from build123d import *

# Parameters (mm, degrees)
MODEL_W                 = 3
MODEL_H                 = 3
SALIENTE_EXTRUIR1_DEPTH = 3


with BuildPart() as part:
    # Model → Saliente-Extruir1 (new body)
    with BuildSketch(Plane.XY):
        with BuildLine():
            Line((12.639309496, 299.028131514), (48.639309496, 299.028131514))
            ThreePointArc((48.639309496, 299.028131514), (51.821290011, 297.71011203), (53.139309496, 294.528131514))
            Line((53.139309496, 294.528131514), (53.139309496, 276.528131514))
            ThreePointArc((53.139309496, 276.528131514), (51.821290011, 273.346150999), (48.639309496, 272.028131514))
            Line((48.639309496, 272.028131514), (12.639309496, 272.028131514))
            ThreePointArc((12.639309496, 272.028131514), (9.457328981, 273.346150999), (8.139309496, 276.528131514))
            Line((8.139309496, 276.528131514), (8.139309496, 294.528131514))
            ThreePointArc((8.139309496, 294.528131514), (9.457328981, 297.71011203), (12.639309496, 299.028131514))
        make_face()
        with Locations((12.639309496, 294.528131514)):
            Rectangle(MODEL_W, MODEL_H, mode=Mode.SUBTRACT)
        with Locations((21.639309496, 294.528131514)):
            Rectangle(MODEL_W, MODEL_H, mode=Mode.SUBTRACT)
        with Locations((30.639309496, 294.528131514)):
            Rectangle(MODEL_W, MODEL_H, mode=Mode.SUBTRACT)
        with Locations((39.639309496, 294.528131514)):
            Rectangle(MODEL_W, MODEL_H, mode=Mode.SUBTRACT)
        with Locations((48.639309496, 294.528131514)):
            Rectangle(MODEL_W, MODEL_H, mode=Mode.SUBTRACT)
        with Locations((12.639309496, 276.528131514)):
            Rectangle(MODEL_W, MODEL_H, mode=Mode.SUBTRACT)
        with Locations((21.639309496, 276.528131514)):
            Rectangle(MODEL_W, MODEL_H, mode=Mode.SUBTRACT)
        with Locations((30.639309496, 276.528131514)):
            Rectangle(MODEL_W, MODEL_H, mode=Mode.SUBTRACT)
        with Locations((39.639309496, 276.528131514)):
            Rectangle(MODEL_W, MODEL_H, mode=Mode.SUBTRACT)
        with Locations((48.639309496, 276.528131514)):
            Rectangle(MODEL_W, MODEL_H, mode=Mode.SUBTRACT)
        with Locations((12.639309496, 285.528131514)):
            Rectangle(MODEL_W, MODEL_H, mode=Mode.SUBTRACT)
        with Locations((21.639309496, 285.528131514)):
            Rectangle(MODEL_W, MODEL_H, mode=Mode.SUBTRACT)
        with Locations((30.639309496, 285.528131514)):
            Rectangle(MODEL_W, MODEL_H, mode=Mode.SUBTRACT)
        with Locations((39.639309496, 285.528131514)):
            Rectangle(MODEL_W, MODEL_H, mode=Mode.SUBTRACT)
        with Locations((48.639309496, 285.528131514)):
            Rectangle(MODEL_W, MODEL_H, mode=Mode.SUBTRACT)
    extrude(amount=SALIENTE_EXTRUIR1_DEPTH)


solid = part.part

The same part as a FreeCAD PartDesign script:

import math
import FreeCAD as App
import Part
import Sketcher
Q = App.Units.Quantity

doc = App.newDocument("Part")
body = doc.addObject("PartDesign::Body", "Body")

sketch1 = body.newObject("Sketcher::SketchObject", "Sketch")
sketch1.AttachmentSupport = (doc.getObject("XY_Plane"), [""])
sketch1.MapMode = "FlatFace"
sketch1.addGeometry(Part.LineSegment(App.Vector(48.639309, 299.028132, 0), App.Vector(12.639309, 299.028132, 0)), False)
sketch1.addGeometry(Part.ArcOfCircle(Part.Circle(App.Vector(12.639309, 294.528132, 0), App.Vector(0, 0, 1), 4.5), math.radians(90), math.radians(180)), False)
sketch1.addGeometry(Part.LineSegment(App.Vector(8.139309, 294.528132, 0), App.Vector(8.139309, 276.528132, 0)), False)
sketch1.addGeometry(Part.ArcOfCircle(Part.Circle(App.Vector(12.639309, 276.528132, 0), App.Vector(0, 0, 1), 4.5), math.radians(-180), math.radians(-90)), False)
sketch1.addGeometry(Part.LineSegment(App.Vector(12.639309, 272.028132, 0), App.Vector(48.639309, 272.028132, 0)), False)
sketch1.addGeometry(Part.ArcOfCircle(Part.Circle(App.Vector(48.639309, 276.528132, 0), App.Vector(0, 0, 1), 4.5), math.radians(-90), math.radians(0)), False)
sketch1.addGeometry(Part.LineSegment(App.Vector(53.139309, 276.528132, 0), App.Vector(53.139309, 294.528132, 0)), False)
sketch1.addGeometry(Part.ArcOfCircle(Part.Circle(App.Vector(48.639309, 294.528132, 0), App.Vector(0, 0, 1), 4.5), math.radians(0), math.radians(90)), False)
sketch1.addGeometry(Part.LineSegment(App.Vector(47.139309, 275.028132, 0), App.Vector(47.139309, 278.028132, 0)), False)
sketch1.addGeometry(Part.LineSegment(App.Vector(47.139309, 278.028132, 0), App.Vector(50.139309, 278.028132, 0)), False)
sketch1.addGeometry(Part.LineSegment(App.Vector(50.139309, 278.028132, 0), App.Vector(50.139309, 275.028132, 0)), False)
sketch1.addGeometry(Part.LineSegment(App.Vector(50.139309, 275.028132, 0), App.Vector(47.139309, 275.028132, 0)), False)
sketch1.addGeometry(Part.LineSegment(App.Vector(38.139309, 275.028132, 0), App.Vector(38.139309, 278.028132, 0)), False)
sketch1.addGeometry(Part.LineSegment(App.Vector(38.139309, 278.028132, 0), App.Vector(41.139309, 278.028132, 0)), False)
sketch1.addGeometry(Part.LineSegment(App.Vector(41.139309, 278.028132, 0), App.Vector(41.139309, 275.028132, 0)), False)
sketch1.addGeometry(Part.LineSegment(App.Vector(41.139309, 275.028132, 0), App.Vector(38.139309, 275.028132, 0)), False)
sketch1.addGeometry(Part.LineSegment(App.Vector(29.139309, 275.028132, 0), App.Vector(29.139309, 278.028132, 0)), False)
sketch1.addGeometry(Part.LineSegment(App.Vector(29.139309, 278.028132, 0), App.Vector(32.139309, 278.028132, 0)), False)
sketch1.addGeometry(Part.LineSegment(App.Vector(32.139309, 278.028132, 0), App.Vector(32.139309, 275.028132, 0)), False)
sketch1.addGeometry(Part.LineSegment(App.Vector(32.139309, 275.028132, 0), App.Vector(29.139309, 275.028132, 0)), False)
sketch1.addGeometry(Part.LineSegment(App.Vector(20.139309, 275.028132, 0), App.Vector(20.139309, 278.028132, 0)), False)
sketch1.addGeometry(Part.LineSegment(App.Vector(20.139309, 278.028132, 0), App.Vector(23.139309, 278.028132, 0)), False)
sketch1.addGeometry(Part.LineSegment(App.Vector(23.139309, 278.028132, 0), App.Vector(23.139309, 275.028132, 0)), False)
sketch1.addGeometry(Part.LineSegment(App.Vector(23.139309, 275.028132, 0), App.Vector(20.139309, 275.028132, 0)), False)
sketch1.addGeometry(Part.LineSegment(App.Vector(11.139309, 275.028132, 0), App.Vector(11.139309, 278.028132, 0)), False)
sketch1.addGeometry(Part.LineSegment(App.Vector(11.139309, 278.028132, 0), App.Vector(14.139309, 278.028132, 0)), False)
sketch1.addGeometry(Part.LineSegment(App.Vector(14.139309, 278.028132, 0), App.Vector(14.139309, 275.028132, 0)), False)
sketch1.addGeometry(Part.LineSegment(App.Vector(14.139309, 275.028132, 0), App.Vector(11.139309, 275.028132, 0)), False)
sketch1.addGeometry(Part.LineSegment(App.Vector(47.139309, 284.028132, 0), App.Vector(47.139309, 287.028132, 0)), False)
sketch1.addGeometry(Part.LineSegment(App.Vector(47.139309, 287.028132, 0), App.Vector(50.139309, 287.028132, 0)), False)
sketch1.addGeometry(Part.LineSegment(App.Vector(50.139309, 287.028132, 0), App.Vector(50.139309, 284.028132, 0)), False)
sketch1.addGeometry(Part.LineSegment(App.Vector(50.139309, 284.028132, 0), App.Vector(47.139309, 284.028132, 0)), False)
sketch1.addGeometry(Part.LineSegment(App.Vector(38.139309, 284.028132, 0), App.Vector(38.139309, 287.028132, 0)), False)
sketch1.addGeometry(Part.LineSegment(App.Vector(38.139309, 287.028132, 0), App.Vector(41.139309, 287.028132, 0)), False)
sketch1.addGeometry(Part.LineSegment(App.Vector(41.139309, 287.028132, 0), App.Vector(41.139309, 284.028132, 0)), False)
sketch1.addGeometry(Part.LineSegment(App.Vector(41.139309, 284.028132, 0), App.Vector(38.139309, 284.028132, 0)), False)
sketch1.addGeometry(Part.LineSegment(App.Vector(47.139309, 293.028132, 0), App.Vector(47.139309, 296.028132, 0)), False)
sketch1.addGeometry(Part.LineSegment(App.Vector(47.139309, 296.028132, 0), App.Vector(50.139309, 296.028132, 0)), False)
sketch1.addGeometry(Part.LineSegment(App.Vector(50.139309, 296.028132, 0), App.Vector(50.139309, 293.028132, 0)), False)
sketch1.addGeometry(Part.LineSegment(App.Vector(50.139309, 293.028132, 0), App.Vector(47.139309, 293.028132, 0)), False)
sketch1.addGeometry(Part.LineSegment(App.Vector(38.139309, 293.028132, 0), App.Vector(38.139309, 296.028132, 0)), False)
sketch1.addGeometry(Part.LineSegment(App.Vector(38.139309, 296.028132, 0), App.Vector(41.139309, 296.028132, 0)), False)
sketch1.addGeometry(Part.LineSegment(App.Vector(41.139309, 296.028132, 0), App.Vector(41.139309, 293.028132, 0)), False)
sketch1.addGeometry(Part.LineSegment(App.Vector(41.139309, 293.028132, 0), App.Vector(38.139309, 293.028132, 0)), False)
sketch1.addGeometry(Part.LineSegment(App.Vector(29.139309, 284.028132, 0), App.Vector(29.139309, 287.028132, 0)), False)
sketch1.addGeometry(Part.LineSegment(App.Vector(29.139309, 287.028132, 0), App.Vector(32.139309, 287.028132, 0)), False)
sketch1.addGeometry(Part.LineSegment(App.Vector(32.139309, 287.028132, 0), App.Vector(32.139309, 284.028132, 0)), False)
sketch1.addGeometry(Part.LineSegment(App.Vector(32.139309, 284.028132, 0), App.Vector(29.139309, 284.028132, 0)), False)
sketch1.addGeometry(Part.LineSegment(App.Vector(20.139309, 284.028132, 0), App.Vector(20.139309, 287.028132, 0)), False)
sketch1.addGeometry(Part.LineSegment(App.Vector(20.139309, 287.028132, 0), App.Vector(23.139309, 287.028132, 0)), False)
sketch1.addGeometry(Part.LineSegment(App.Vector(23.139309, 287.028132, 0), App.Vector(23.139309, 284.028132, 0)), False)
sketch1.addGeometry(Part.LineSegment(App.Vector(23.139309, 284.028132, 0), App.Vector(20.139309, 284.028132, 0)), False)
sketch1.addGeometry(Part.LineSegment(App.Vector(11.139309, 284.028132, 0), App.Vector(11.139309, 287.028132, 0)), False)
sketch1.addGeometry(Part.LineSegment(App.Vector(11.139309, 287.028132, 0), App.Vector(14.139309, 287.028132, 0)), False)
sketch1.addGeometry(Part.LineSegment(App.Vector(14.139309, 287.028132, 0), App.Vector(14.139309, 284.028132, 0)), False)
sketch1.addGeometry(Part.LineSegment(App.Vector(14.139309, 284.028132, 0), App.Vector(11.139309, 284.028132, 0)), False)
sketch1.addGeometry(Part.LineSegment(App.Vector(29.139309, 293.028132, 0), App.Vector(29.139309, 296.028132, 0)), False)
sketch1.addGeometry(Part.LineSegment(App.Vector(29.139309, 296.028132, 0), App.Vector(32.139309, 296.028132, 0)), False)
sketch1.addGeometry(Part.LineSegment(App.Vector(32.139309, 296.028132, 0), App.Vector(32.139309, 293.028132, 0)), False)
sketch1.addGeometry(Part.LineSegment(App.Vector(32.139309, 293.028132, 0), App.Vector(29.139309, 293.028132, 0)), False)
sketch1.addGeometry(Part.LineSegment(App.Vector(20.139309, 293.028132, 0), App.Vector(20.139309, 296.028132, 0)), False)
sketch1.addGeometry(Part.LineSegment(App.Vector(20.139309, 296.028132, 0), App.Vector(23.139309, 296.028132, 0)), False)
sketch1.addGeometry(Part.LineSegment(App.Vector(23.139309, 296.028132, 0), App.Vector(23.139309, 293.028132, 0)), False)
sketch1.addGeometry(Part.LineSegment(App.Vector(23.139309, 293.028132, 0), App.Vector(20.139309, 293.028132, 0)), False)
sketch1.addGeometry(Part.LineSegment(App.Vector(11.139309, 293.028132, 0), App.Vector(11.139309, 296.028132, 0)), False)
sketch1.addGeometry(Part.LineSegment(App.Vector(11.139309, 296.028132, 0), App.Vector(14.139309, 296.028132, 0)), False)
sketch1.addGeometry(Part.LineSegment(App.Vector(14.139309, 296.028132, 0), App.Vector(14.139309, 293.028132, 0)), False)
sketch1.addGeometry(Part.LineSegment(App.Vector(14.139309, 293.028132, 0), App.Vector(11.139309, 293.028132, 0)), False)
sketch1.addConstraint(Sketcher.Constraint("Tangent", 0, 2, 1, 1))
sketch1.addConstraint(Sketcher.Constraint("Tangent", 1, 2, 2, 1))
sketch1.addConstraint(Sketcher.Constraint("Tangent", 2, 2, 3, 1))
sketch1.addConstraint(Sketcher.Constraint("Tangent", 3, 2, 4, 1))
sketch1.addConstraint(Sketcher.Constraint("Tangent", 4, 2, 5, 1))
sketch1.addConstraint(Sketcher.Constraint("Tangent", 5, 2, 6, 1))
sketch1.addConstraint(Sketcher.Constraint("Tangent", 6, 2, 7, 1))
sketch1.addConstraint(Sketcher.Constraint("Tangent", 7, 2, 0, 1))
sketch1.addConstraint(Sketcher.Constraint("Coincident", 8, 2, 9, 1))
sketch1.addConstraint(Sketcher.Constraint("Coincident", 9, 2, 10, 1))
sketch1.addConstraint(Sketcher.Constraint("Coincident", 10, 2, 11, 1))
sketch1.addConstraint(Sketcher.Constraint("Coincident", 11, 2, 8, 1))
sketch1.addConstraint(Sketcher.Constraint("Coincident", 12, 2, 13, 1))
sketch1.addConstraint(Sketcher.Constraint("Coincident", 13, 2, 14, 1))
sketch1.addConstraint(Sketcher.Constraint("Coincident", 14, 2, 15, 1))
sketch1.addConstraint(Sketcher.Constraint("Coincident", 15, 2, 12, 1))
sketch1.addConstraint(Sketcher.Constraint("Coincident", 16, 2, 17, 1))
sketch1.addConstraint(Sketcher.Constraint("Coincident", 17, 2, 18, 1))
sketch1.addConstraint(Sketcher.Constraint("Coincident", 18, 2, 19, 1))
sketch1.addConstraint(Sketcher.Constraint("Coincident", 19, 2, 16, 1))
sketch1.addConstraint(Sketcher.Constraint("Coincident", 20, 2, 21, 1))
sketch1.addConstraint(Sketcher.Constraint("Coincident", 21, 2, 22, 1))
sketch1.addConstraint(Sketcher.Constraint("Coincident", 22, 2, 23, 1))
sketch1.addConstraint(Sketcher.Constraint("Coincident", 23, 2, 20, 1))
sketch1.addConstraint(Sketcher.Constraint("Coincident", 24, 2, 25, 1))
sketch1.addConstraint(Sketcher.Constraint("Coincident", 25, 2, 26, 1))
sketch1.addConstraint(Sketcher.Constraint("Coincident", 26, 2, 27, 1))
sketch1.addConstraint(Sketcher.Constraint("Coincident", 27, 2, 24, 1))
sketch1.addConstraint(Sketcher.Constraint("Coincident", 28, 2, 29, 1))
sketch1.addConstraint(Sketcher.Constraint("Coincident", 29, 2, 30, 1))
sketch1.addConstraint(Sketcher.Constraint("Coincident", 30, 2, 31, 1))
sketch1.addConstraint(Sketcher.Constraint("Coincident", 31, 2, 28, 1))
sketch1.addConstraint(Sketcher.Constraint("Coincident", 32, 2, 33, 1))
sketch1.addConstraint(Sketcher.Constraint("Coincident", 33, 2, 34, 1))
sketch1.addConstraint(Sketcher.Constraint("Coincident", 34, 2, 35, 1))
sketch1.addConstraint(Sketcher.Constraint("Coincident", 35, 2, 32, 1))
sketch1.addConstraint(Sketcher.Constraint("Coincident", 36, 2, 37, 1))
sketch1.addConstraint(Sketcher.Constraint("Coincident", 37, 2, 38, 1))
sketch1.addConstraint(Sketcher.Constraint("Coincident", 38, 2, 39, 1))
sketch1.addConstraint(Sketcher.Constraint("Coincident", 39, 2, 36, 1))
sketch1.addConstraint(Sketcher.Constraint("Coincident", 40, 2, 41, 1))
sketch1.addConstraint(Sketcher.Constraint("Coincident", 41, 2, 42, 1))
sketch1.addConstraint(Sketcher.Constraint("Coincident", 42, 2, 43, 1))
sketch1.addConstraint(Sketcher.Constraint("Coincident", 43, 2, 40, 1))
sketch1.addConstraint(Sketcher.Constraint("Coincident", 44, 2, 45, 1))
sketch1.addConstraint(Sketcher.Constraint("Coincident", 45, 2, 46, 1))
sketch1.addConstraint(Sketcher.Constraint("Coincident", 46, 2, 47, 1))
sketch1.addConstraint(Sketcher.Constraint("Coincident", 47, 2, 44, 1))
sketch1.addConstraint(Sketcher.Constraint("Coincident", 48, 2, 49, 1))
sketch1.addConstraint(Sketcher.Constraint("Coincident", 49, 2, 50, 1))
sketch1.addConstraint(Sketcher.Constraint("Coincident", 50, 2, 51, 1))
sketch1.addConstraint(Sketcher.Constraint("Coincident", 51, 2, 48, 1))
sketch1.addConstraint(Sketcher.Constraint("Coincident", 52, 2, 53, 1))
sketch1.addConstraint(Sketcher.Constraint("Coincident", 53, 2, 54, 1))
sketch1.addConstraint(Sketcher.Constraint("Coincident", 54, 2, 55, 1))
sketch1.addConstraint(Sketcher.Constraint("Coincident", 55, 2, 52, 1))
sketch1.addConstraint(Sketcher.Constraint("Coincident", 56, 2, 57, 1))
sketch1.addConstraint(Sketcher.Constraint("Coincident", 57, 2, 58, 1))
sketch1.addConstraint(Sketcher.Constraint("Coincident", 58, 2, 59, 1))
sketch1.addConstraint(Sketcher.Constraint("Coincident", 59, 2, 56, 1))
sketch1.addConstraint(Sketcher.Constraint("Coincident", 60, 2, 61, 1))
sketch1.addConstraint(Sketcher.Constraint("Coincident", 61, 2, 62, 1))
sketch1.addConstraint(Sketcher.Constraint("Coincident", 62, 2, 63, 1))
sketch1.addConstraint(Sketcher.Constraint("Coincident", 63, 2, 60, 1))
sketch1.addConstraint(Sketcher.Constraint("Coincident", 64, 2, 65, 1))
sketch1.addConstraint(Sketcher.Constraint("Coincident", 65, 2, 66, 1))
sketch1.addConstraint(Sketcher.Constraint("Coincident", 66, 2, 67, 1))
sketch1.addConstraint(Sketcher.Constraint("Coincident", 67, 2, 64, 1))
sketch1.addConstraint(Sketcher.Constraint("Horizontal", 0))
sketch1.addConstraint(Sketcher.Constraint("Vertical", 2))
sketch1.addConstraint(Sketcher.Constraint("Horizontal", 4))
sketch1.addConstraint(Sketcher.Constraint("Vertical", 6))
sketch1.addConstraint(Sketcher.Constraint("Vertical", 8))
sketch1.addConstraint(Sketcher.Constraint("Horizontal", 9))
sketch1.addConstraint(Sketcher.Constraint("Vertical", 10))
sketch1.addConstraint(Sketcher.Constraint("Horizontal", 11))
sketch1.addConstraint(Sketcher.Constraint("Vertical", 12))
sketch1.addConstraint(Sketcher.Constraint("Horizontal", 13))
sketch1.addConstraint(Sketcher.Constraint("Vertical", 14))
sketch1.addConstraint(Sketcher.Constraint("Horizontal", 15))
sketch1.addConstraint(Sketcher.Constraint("Vertical", 16))
sketch1.addConstraint(Sketcher.Constraint("Horizontal", 17))
sketch1.addConstraint(Sketcher.Constraint("Vertical", 18))
sketch1.addConstraint(Sketcher.Constraint("Horizontal", 19))
sketch1.addConstraint(Sketcher.Constraint("Vertical", 20))
sketch1.addConstraint(Sketcher.Constraint("Horizontal", 21))
sketch1.addConstraint(Sketcher.Constraint("Vertical", 22))
sketch1.addConstraint(Sketcher.Constraint("Horizontal", 23))
sketch1.addConstraint(Sketcher.Constraint("Vertical", 24))
sketch1.addConstraint(Sketcher.Constraint("Horizontal", 25))
sketch1.addConstraint(Sketcher.Constraint("Vertical", 26))
sketch1.addConstraint(Sketcher.Constraint("Horizontal", 27))
sketch1.addConstraint(Sketcher.Constraint("Vertical", 28))
sketch1.addConstraint(Sketcher.Constraint("Horizontal", 29))
sketch1.addConstraint(Sketcher.Constraint("Vertical", 30))
sketch1.addConstraint(Sketcher.Constraint("Horizontal", 31))
sketch1.addConstraint(Sketcher.Constraint("Vertical", 32))
sketch1.addConstraint(Sketcher.Constraint("Horizontal", 33))
sketch1.addConstraint(Sketcher.Constraint("Vertical", 34))
sketch1.addConstraint(Sketcher.Constraint("Horizontal", 35))
sketch1.addConstraint(Sketcher.Constraint("Vertical", 36))
sketch1.addConstraint(Sketcher.Constraint("Horizontal", 37))
sketch1.addConstraint(Sketcher.Constraint("Vertical", 38))
sketch1.addConstraint(Sketcher.Constraint("Horizontal", 39))
sketch1.addConstraint(Sketcher.Constraint("Vertical", 40))
sketch1.addConstraint(Sketcher.Constraint("Horizontal", 41))
sketch1.addConstraint(Sketcher.Constraint("Vertical", 42))
sketch1.addConstraint(Sketcher.Constraint("Horizontal", 43))
sketch1.addConstraint(Sketcher.Constraint("Vertical", 44))
sketch1.addConstraint(Sketcher.Constraint("Horizontal", 45))
sketch1.addConstraint(Sketcher.Constraint("Vertical", 46))
sketch1.addConstraint(Sketcher.Constraint("Horizontal", 47))
sketch1.addConstraint(Sketcher.Constraint("Vertical", 48))
sketch1.addConstraint(Sketcher.Constraint("Horizontal", 49))
sketch1.addConstraint(Sketcher.Constraint("Vertical", 50))
sketch1.addConstraint(Sketcher.Constraint("Horizontal", 51))
sketch1.addConstraint(Sketcher.Constraint("Vertical", 52))
sketch1.addConstraint(Sketcher.Constraint("Horizontal", 53))
sketch1.addConstraint(Sketcher.Constraint("Vertical", 54))
sketch1.addConstraint(Sketcher.Constraint("Horizontal", 55))
sketch1.addConstraint(Sketcher.Constraint("Vertical", 56))
sketch1.addConstraint(Sketcher.Constraint("Horizontal", 57))
sketch1.addConstraint(Sketcher.Constraint("Vertical", 58))
sketch1.addConstraint(Sketcher.Constraint("Horizontal", 59))
sketch1.addConstraint(Sketcher.Constraint("Vertical", 60))
sketch1.addConstraint(Sketcher.Constraint("Horizontal", 61))
sketch1.addConstraint(Sketcher.Constraint("Vertical", 62))
sketch1.addConstraint(Sketcher.Constraint("Horizontal", 63))
sketch1.addConstraint(Sketcher.Constraint("Vertical", 64))
sketch1.addConstraint(Sketcher.Constraint("Horizontal", 65))
sketch1.addConstraint(Sketcher.Constraint("Vertical", 66))
sketch1.addConstraint(Sketcher.Constraint("Horizontal", 67))
sketch1.addConstraint(Sketcher.Constraint("Equal", 1, 3))
sketch1.addConstraint(Sketcher.Constraint("Equal", 3, 5))
sketch1.addConstraint(Sketcher.Constraint("Equal", 5, 7))
sketch1.addConstraint(Sketcher.Constraint("Horizontal", 9, 2, 12, 2))
sketch1.addConstraint(Sketcher.Constraint("Horizontal", 11, 2, 14, 2))
sketch1.addConstraint(Sketcher.Constraint("Horizontal", 13, 2, 16, 2))
sketch1.addConstraint(Sketcher.Constraint("Horizontal", 15, 2, 18, 2))
sketch1.addConstraint(Sketcher.Constraint("Horizontal", 17, 2, 20, 2))
sketch1.addConstraint(Sketcher.Constraint("Horizontal", 19, 2, 22, 2))
sketch1.addConstraint(Sketcher.Constraint("Horizontal", 21, 2, 24, 2))
sketch1.addConstraint(Sketcher.Constraint("Horizontal", 23, 2, 26, 2))
sketch1.addConstraint(Sketcher.Constraint("Horizontal", 29, 2, 32, 2))
sketch1.addConstraint(Sketcher.Constraint("Horizontal", 31, 2, 34, 2))
sketch1.addConstraint(Sketcher.Constraint("Horizontal", 37, 2, 40, 2))
sketch1.addConstraint(Sketcher.Constraint("Horizontal", 39, 2, 42, 2))
sketch1.addConstraint(Sketcher.Constraint("Horizontal", 33, 2, 44, 2))
sketch1.addConstraint(Sketcher.Constraint("Horizontal", 35, 2, 46, 2))
sketch1.addConstraint(Sketcher.Constraint("Horizontal", 45, 2, 48, 2))
sketch1.addConstraint(Sketcher.Constraint("Horizontal", 47, 2, 50, 2))
sketch1.addConstraint(Sketcher.Constraint("Horizontal", 49, 2, 52, 2))
sketch1.addConstraint(Sketcher.Constraint("Horizontal", 51, 2, 54, 2))
sketch1.addConstraint(Sketcher.Constraint("Horizontal", 41, 2, 56, 2))
sketch1.addConstraint(Sketcher.Constraint("Horizontal", 43, 2, 58, 2))
sketch1.addConstraint(Sketcher.Constraint("Horizontal", 57, 2, 60, 2))
sketch1.addConstraint(Sketcher.Constraint("Horizontal", 59, 2, 62, 2))
sketch1.addConstraint(Sketcher.Constraint("Horizontal", 61, 2, 64, 2))
sketch1.addConstraint(Sketcher.Constraint("Horizontal", 63, 2, 66, 2))
sketch1.addConstraint(Sketcher.Constraint("Vertical", 11, 2, 28, 2))
sketch1.addConstraint(Sketcher.Constraint("Vertical", 10, 2, 29, 2))
sketch1.addConstraint(Sketcher.Constraint("Vertical", 15, 2, 32, 2))
sketch1.addConstraint(Sketcher.Constraint("Vertical", 14, 2, 33, 2))
sketch1.addConstraint(Sketcher.Constraint("Vertical", 31, 2, 36, 2))
sketch1.addConstraint(Sketcher.Constraint("Vertical", 30, 2, 37, 2))
sketch1.addConstraint(Sketcher.Constraint("Vertical", 35, 2, 40, 2))
sketch1.addConstraint(Sketcher.Constraint("Vertical", 34, 2, 41, 2))
sketch1.addConstraint(Sketcher.Constraint("Vertical", 19, 2, 44, 2))
sketch1.addConstraint(Sketcher.Constraint("Vertical", 18, 2, 45, 2))
sketch1.addConstraint(Sketcher.Constraint("Vertical", 23, 2, 48, 2))
sketch1.addConstraint(Sketcher.Constraint("Vertical", 22, 2, 49, 2))
sketch1.addConstraint(Sketcher.Constraint("Vertical", 27, 2, 52, 2))
sketch1.addConstraint(Sketcher.Constraint("Vertical", 26, 2, 53, 2))
sketch1.addConstraint(Sketcher.Constraint("Vertical", 47, 2, 56, 2))
sketch1.addConstraint(Sketcher.Constraint("Vertical", 46, 2, 57, 2))
sketch1.addConstraint(Sketcher.Constraint("Vertical", 51, 2, 60, 2))
sketch1.addConstraint(Sketcher.Constraint("Vertical", 50, 2, 61, 2))
sketch1.addConstraint(Sketcher.Constraint("Vertical", 55, 2, 64, 2))
sketch1.addConstraint(Sketcher.Constraint("Vertical", 54, 2, 65, 2))
sketch1.addConstraint(Sketcher.Constraint("Equal", 11, 13))
sketch1.addConstraint(Sketcher.Constraint("Equal", 15, 17))
sketch1.addConstraint(Sketcher.Constraint("Equal", 19, 21))
sketch1.addConstraint(Sketcher.Constraint("Equal", 23, 25))
sketch1.addConstraint(Sketcher.Constraint("Equal", 67, 8))
sketch1.addConstraint(Sketcher.Constraint("Equal", 26, 28))
sketch1.addConstraint(Sketcher.Constraint("Equal", 34, 36))
sketch1.addConstraint(Sketcher.Constraint("Radius", 1, Q("4.5 mm")))
sketch1.addConstraint(Sketcher.Constraint("DistanceX", 0, 2, 0, 1, Q("36 mm")))
sketch1.addConstraint(Sketcher.Constraint("DistanceX", 9, 1, 9, 2, Q("3 mm")))
sketch1.addConstraint(Sketcher.Constraint("DistanceY", 2, 2, 2, 1, Q("18 mm")))
sketch1.addConstraint(Sketcher.Constraint("DistanceX", -1, 1, 1, 3, Q("12.639309 mm")))
sketch1.addConstraint(Sketcher.Constraint("DistanceY", -1, 1, 1, 3, Q("294.528132 mm")))
sketch1.addConstraint(Sketcher.Constraint("DistanceX", -1, 1, 8, 2, Q("47.139309 mm")))
sketch1.addConstraint(Sketcher.Constraint("DistanceY", -1, 1, 8, 2, Q("278.028132 mm")))
sketch1.addConstraint(Sketcher.Constraint("DistanceX", -1, 1, 12, 2, Q("38.139309 mm")))
sketch1.addConstraint(Sketcher.Constraint("DistanceX", -1, 1, 16, 2, Q("29.139309 mm")))
sketch1.addConstraint(Sketcher.Constraint("DistanceX", -1, 1, 20, 2, Q("20.139309 mm")))
sketch1.addConstraint(Sketcher.Constraint("DistanceX", -1, 1, 24, 2, Q("11.139309 mm")))
sketch1.addConstraint(Sketcher.Constraint("DistanceY", -1, 1, 28, 2, Q("287.028132 mm")))
sketch1.addConstraint(Sketcher.Constraint("DistanceY", -1, 1, 36, 2, Q("296.028132 mm")))
pad1 = body.newObject("PartDesign::Pad", "Pad")
pad1.Profile = sketch1
pad1.Length = 3

doc.recompute()
